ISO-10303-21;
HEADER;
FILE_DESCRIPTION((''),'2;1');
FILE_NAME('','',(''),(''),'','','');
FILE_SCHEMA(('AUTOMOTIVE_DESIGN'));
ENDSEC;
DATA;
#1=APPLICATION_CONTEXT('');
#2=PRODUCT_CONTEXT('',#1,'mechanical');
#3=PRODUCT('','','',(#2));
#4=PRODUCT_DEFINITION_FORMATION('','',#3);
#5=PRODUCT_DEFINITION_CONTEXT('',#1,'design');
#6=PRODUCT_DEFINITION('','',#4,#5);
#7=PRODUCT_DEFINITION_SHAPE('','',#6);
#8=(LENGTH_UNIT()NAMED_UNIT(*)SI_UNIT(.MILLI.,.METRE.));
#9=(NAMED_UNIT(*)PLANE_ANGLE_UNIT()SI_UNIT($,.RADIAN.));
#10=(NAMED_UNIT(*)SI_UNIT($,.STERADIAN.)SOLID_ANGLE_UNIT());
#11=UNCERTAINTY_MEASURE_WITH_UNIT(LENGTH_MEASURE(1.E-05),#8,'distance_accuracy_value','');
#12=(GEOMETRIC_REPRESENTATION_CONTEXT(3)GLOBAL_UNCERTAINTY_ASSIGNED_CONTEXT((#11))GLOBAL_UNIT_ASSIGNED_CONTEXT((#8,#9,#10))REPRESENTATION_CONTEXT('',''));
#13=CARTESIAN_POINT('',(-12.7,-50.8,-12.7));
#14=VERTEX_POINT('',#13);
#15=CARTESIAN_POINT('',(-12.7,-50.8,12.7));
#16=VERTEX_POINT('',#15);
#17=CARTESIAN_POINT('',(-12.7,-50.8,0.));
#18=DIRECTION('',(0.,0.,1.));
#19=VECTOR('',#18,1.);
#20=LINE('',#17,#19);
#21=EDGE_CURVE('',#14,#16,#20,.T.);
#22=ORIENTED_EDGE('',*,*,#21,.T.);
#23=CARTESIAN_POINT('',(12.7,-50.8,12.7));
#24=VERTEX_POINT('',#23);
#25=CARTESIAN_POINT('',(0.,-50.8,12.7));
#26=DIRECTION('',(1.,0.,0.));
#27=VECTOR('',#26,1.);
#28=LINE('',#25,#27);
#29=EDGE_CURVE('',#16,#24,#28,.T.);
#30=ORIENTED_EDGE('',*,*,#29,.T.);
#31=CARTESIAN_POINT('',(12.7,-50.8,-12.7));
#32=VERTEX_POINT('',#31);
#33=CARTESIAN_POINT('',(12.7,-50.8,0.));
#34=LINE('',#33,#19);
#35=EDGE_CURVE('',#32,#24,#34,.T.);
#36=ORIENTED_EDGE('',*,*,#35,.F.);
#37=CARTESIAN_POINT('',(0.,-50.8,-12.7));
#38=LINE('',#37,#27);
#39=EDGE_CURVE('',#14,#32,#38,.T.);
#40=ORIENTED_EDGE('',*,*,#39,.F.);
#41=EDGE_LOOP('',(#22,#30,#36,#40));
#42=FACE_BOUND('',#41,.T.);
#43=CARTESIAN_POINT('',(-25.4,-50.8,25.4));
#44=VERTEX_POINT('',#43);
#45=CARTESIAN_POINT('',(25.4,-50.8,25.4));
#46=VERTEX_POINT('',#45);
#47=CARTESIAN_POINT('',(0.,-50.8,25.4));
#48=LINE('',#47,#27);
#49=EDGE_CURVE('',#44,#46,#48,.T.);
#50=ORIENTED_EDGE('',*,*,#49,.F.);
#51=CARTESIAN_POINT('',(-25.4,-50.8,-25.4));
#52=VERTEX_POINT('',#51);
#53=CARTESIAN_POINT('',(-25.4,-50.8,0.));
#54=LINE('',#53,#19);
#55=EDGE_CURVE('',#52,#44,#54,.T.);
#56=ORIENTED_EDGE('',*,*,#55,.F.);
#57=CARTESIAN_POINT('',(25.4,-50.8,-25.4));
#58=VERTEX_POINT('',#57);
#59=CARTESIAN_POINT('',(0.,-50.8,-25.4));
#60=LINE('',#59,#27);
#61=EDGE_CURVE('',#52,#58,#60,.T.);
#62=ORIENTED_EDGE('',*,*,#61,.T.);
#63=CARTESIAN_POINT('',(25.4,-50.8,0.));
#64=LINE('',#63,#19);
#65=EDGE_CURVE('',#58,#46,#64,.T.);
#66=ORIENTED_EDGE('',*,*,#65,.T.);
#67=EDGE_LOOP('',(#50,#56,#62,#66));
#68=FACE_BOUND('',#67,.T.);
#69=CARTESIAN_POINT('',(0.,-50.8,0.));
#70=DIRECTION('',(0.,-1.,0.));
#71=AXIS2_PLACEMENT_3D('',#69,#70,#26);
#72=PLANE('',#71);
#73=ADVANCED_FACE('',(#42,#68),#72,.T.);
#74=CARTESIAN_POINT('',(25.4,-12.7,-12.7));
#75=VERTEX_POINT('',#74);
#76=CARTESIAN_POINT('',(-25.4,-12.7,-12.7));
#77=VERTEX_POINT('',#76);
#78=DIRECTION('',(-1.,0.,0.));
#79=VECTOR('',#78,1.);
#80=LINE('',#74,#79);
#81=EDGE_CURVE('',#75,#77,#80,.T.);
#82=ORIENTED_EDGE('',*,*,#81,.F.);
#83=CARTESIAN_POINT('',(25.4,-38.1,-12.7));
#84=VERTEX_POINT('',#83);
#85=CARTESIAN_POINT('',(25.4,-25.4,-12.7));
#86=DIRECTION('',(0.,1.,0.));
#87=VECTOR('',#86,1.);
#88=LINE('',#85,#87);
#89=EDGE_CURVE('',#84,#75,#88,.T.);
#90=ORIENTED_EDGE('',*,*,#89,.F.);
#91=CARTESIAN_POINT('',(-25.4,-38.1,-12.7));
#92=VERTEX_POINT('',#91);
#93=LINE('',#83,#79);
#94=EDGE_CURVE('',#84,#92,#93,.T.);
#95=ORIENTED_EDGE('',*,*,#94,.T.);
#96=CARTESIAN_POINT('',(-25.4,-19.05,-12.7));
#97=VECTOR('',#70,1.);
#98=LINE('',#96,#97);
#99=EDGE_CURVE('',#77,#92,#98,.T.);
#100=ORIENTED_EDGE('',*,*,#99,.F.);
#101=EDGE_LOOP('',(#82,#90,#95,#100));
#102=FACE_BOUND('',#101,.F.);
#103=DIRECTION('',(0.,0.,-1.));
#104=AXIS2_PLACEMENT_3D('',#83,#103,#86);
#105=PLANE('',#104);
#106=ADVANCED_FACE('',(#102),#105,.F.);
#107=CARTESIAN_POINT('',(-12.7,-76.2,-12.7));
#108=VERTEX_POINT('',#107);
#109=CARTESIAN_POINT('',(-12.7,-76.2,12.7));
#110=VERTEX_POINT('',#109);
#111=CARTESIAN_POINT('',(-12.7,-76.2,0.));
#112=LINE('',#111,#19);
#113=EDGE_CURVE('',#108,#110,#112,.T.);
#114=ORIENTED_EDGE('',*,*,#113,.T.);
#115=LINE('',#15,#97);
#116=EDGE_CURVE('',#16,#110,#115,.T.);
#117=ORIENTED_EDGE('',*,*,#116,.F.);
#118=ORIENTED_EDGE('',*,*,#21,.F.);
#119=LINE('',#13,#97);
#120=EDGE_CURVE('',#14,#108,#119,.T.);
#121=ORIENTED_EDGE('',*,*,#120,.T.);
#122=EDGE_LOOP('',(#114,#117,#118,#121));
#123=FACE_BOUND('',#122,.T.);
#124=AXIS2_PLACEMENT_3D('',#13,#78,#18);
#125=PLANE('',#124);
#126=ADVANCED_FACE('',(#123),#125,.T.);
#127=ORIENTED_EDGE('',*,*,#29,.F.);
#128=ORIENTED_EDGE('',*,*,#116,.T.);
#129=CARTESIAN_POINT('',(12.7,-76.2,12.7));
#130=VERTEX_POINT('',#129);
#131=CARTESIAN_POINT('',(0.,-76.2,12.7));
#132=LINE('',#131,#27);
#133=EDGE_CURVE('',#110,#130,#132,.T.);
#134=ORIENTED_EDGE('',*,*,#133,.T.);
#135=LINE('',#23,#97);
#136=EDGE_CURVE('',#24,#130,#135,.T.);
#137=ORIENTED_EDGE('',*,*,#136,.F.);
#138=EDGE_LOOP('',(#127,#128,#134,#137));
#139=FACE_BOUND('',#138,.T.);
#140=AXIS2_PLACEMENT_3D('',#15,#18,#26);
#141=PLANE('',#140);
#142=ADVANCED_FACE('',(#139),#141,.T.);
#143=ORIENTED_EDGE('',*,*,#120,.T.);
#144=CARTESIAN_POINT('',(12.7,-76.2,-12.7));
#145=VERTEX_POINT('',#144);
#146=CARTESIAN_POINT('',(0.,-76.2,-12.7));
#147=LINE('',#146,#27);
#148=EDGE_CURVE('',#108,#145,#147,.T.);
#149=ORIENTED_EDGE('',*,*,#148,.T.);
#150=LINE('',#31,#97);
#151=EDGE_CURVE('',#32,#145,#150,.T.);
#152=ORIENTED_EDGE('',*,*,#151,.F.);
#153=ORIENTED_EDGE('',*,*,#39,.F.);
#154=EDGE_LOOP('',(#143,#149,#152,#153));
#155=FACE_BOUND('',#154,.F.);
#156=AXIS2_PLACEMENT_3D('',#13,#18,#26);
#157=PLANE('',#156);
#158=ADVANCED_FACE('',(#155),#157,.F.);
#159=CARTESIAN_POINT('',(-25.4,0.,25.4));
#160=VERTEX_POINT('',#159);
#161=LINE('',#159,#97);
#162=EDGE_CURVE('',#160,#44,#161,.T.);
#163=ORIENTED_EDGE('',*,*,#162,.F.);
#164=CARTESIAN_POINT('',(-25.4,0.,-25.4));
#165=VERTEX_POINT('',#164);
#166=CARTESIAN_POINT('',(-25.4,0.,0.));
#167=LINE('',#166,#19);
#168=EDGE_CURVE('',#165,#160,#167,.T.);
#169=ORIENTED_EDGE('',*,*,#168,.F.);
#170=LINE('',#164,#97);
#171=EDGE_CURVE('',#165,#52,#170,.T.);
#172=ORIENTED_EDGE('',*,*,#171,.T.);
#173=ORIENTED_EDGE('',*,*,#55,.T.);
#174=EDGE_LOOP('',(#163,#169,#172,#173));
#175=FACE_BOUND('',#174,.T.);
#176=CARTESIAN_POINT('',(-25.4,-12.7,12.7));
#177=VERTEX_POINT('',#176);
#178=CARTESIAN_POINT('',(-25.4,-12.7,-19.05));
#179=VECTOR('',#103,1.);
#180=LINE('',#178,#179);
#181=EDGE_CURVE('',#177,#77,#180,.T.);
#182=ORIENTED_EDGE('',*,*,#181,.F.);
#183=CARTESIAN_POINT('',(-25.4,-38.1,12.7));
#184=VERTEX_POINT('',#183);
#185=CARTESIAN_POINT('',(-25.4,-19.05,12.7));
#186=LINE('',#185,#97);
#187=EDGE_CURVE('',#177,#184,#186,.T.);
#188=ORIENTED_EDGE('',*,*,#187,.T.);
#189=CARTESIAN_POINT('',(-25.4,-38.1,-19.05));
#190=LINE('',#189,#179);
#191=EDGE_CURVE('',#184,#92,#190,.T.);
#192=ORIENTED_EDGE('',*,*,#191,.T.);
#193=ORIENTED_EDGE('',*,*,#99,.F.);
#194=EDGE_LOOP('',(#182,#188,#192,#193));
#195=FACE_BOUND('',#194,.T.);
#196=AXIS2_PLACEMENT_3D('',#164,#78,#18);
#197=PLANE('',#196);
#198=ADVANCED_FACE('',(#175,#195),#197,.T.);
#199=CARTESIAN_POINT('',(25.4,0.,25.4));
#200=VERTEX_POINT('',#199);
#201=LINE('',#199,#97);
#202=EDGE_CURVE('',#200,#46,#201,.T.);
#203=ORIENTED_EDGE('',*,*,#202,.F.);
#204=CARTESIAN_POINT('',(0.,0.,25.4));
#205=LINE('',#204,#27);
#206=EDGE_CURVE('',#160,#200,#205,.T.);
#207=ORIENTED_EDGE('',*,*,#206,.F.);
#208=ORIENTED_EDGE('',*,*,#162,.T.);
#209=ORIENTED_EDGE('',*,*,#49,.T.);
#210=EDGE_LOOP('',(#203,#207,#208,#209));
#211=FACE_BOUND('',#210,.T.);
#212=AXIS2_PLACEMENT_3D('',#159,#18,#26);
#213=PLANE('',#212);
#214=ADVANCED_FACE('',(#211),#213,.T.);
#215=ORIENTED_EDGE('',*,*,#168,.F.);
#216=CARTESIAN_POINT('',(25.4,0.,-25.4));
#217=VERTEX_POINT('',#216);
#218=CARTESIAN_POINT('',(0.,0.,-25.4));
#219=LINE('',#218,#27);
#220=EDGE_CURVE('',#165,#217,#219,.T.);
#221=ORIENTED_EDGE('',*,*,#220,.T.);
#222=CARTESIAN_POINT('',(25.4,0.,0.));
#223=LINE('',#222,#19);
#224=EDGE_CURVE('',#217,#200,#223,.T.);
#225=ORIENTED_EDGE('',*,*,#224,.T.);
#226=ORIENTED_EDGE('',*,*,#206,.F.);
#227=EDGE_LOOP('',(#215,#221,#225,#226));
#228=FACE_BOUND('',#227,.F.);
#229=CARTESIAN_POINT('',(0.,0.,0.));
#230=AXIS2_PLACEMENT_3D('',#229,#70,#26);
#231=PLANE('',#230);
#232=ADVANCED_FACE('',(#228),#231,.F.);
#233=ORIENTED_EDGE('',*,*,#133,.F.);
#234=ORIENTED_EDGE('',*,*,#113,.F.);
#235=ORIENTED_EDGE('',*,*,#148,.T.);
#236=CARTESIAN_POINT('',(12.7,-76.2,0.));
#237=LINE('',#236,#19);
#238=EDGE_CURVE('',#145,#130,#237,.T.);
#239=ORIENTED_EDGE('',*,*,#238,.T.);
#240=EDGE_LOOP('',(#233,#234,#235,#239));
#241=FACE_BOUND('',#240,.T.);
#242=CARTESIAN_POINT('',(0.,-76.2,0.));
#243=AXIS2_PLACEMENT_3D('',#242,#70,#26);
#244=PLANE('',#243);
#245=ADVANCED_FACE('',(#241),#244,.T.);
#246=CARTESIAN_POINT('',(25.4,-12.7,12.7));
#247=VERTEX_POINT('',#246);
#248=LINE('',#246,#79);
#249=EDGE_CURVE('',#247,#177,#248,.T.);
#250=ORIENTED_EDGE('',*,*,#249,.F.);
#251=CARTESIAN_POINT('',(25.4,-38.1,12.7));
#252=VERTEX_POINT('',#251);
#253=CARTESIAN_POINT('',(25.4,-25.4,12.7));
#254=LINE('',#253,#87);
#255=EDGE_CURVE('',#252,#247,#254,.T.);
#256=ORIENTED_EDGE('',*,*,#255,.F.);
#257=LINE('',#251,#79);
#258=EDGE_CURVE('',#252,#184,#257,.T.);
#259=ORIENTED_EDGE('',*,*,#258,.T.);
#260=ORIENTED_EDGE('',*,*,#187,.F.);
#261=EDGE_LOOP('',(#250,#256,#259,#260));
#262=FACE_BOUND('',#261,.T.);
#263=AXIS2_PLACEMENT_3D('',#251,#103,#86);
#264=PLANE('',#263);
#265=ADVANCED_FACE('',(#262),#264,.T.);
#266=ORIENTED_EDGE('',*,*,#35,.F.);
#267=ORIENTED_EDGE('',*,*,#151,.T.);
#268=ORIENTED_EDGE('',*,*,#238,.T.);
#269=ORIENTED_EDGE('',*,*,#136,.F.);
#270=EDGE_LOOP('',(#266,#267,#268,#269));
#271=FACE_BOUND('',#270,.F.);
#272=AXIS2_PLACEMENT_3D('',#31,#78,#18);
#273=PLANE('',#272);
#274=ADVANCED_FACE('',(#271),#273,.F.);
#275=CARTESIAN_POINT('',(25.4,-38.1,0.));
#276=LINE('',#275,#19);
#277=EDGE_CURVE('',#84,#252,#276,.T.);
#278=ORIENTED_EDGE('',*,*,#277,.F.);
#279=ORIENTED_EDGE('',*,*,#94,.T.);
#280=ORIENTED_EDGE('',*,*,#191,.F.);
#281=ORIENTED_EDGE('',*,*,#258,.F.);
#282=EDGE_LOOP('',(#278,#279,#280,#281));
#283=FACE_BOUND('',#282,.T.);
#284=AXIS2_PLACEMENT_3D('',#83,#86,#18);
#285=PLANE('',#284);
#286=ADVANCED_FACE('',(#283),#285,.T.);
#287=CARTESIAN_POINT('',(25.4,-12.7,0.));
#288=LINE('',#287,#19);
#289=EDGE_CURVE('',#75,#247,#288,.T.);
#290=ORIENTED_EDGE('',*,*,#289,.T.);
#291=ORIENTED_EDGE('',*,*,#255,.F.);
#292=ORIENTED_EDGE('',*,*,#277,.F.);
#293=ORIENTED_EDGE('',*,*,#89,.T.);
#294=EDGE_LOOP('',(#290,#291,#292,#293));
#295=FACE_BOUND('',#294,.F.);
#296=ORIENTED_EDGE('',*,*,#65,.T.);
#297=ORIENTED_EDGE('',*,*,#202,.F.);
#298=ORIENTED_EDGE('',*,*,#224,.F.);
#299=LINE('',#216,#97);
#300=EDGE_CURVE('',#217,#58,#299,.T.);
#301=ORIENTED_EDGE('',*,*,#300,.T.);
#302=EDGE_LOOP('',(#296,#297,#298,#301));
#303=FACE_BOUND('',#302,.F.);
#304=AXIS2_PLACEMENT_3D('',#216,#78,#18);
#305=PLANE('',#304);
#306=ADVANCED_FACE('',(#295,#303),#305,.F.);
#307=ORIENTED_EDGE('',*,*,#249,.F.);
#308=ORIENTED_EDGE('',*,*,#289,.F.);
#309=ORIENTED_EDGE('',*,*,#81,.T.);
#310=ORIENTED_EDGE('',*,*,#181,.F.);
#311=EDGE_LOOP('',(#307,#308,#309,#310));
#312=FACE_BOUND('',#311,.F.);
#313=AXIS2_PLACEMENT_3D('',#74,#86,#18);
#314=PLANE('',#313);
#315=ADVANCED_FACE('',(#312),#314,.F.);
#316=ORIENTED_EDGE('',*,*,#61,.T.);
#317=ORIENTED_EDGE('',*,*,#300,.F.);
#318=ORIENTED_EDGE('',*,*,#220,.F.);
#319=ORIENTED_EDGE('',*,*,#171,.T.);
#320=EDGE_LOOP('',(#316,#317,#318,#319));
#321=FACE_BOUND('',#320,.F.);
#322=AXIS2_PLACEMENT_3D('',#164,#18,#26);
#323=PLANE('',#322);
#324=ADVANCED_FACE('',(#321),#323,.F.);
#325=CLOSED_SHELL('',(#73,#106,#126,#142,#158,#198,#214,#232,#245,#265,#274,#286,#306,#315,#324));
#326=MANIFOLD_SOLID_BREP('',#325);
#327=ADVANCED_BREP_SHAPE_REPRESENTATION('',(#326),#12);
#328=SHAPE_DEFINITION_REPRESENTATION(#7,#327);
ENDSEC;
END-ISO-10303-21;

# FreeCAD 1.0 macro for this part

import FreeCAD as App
import Part
import Sketcher

V = App.Vector
Q = App.Units.Quantity

doc = App.newDocument("Part")
body = doc.addObject("PartDesign::Body", "Body")

# Sketch on XZ plane
sketch1 = body.newObject("Sketcher::SketchObject", "Sketch")
sketch1.AttachmentSupport = (doc.getObject("XZ_Plane"), [""])
sketch1.MapMode = "FlatFace"
sketch1.addGeometry(Part.LineSegment(V(-25, 25, 0), V(-25, -25, 0)), False)
sketch1.addGeometry(Part.LineSegment(V(-25, -25, 0), V(25, -25, 0)), False)
sketch1.addGeometry(Part.LineSegment(V(25, -25, 0), V(25, 25, 0)), False)
sketch1.addGeometry(Part.LineSegment(V(25, 25, 0), V(-25, 25, 0)), False)
sketch1.addConstraint(Sketcher.Constraint("Coincident", 0, 2, 1, 1))
sketch1.addConstraint(Sketcher.Constraint("Coincident", 1, 2, 2, 1))
sketch1.addConstraint(Sketcher.Constraint("Coincident", 2, 2, 3, 1))
sketch1.addConstraint(Sketcher.Constraint("Coincident", 3, 2, 0, 1))
sketch1.addConstraint(Sketcher.Constraint("Vertical", 0))
sketch1.addConstraint(Sketcher.Constraint("Horizontal", 1))
sketch1.addConstraint(Sketcher.Constraint("Vertical", 2))
sketch1.addConstraint(Sketcher.Constraint("Horizontal", 3))
sketch1.addConstraint(Sketcher.Constraint("Symmetric", 0, 2, 2, 2, -1, 1))
sketch1.addConstraint(Sketcher.Constraint("Equal", 3, 0))
sketch1.addConstraint(Sketcher.Constraint("DistanceX", 1, 1, 1, 2, Q("2 in")))
pad1 = body.newObject("PartDesign::Pad", "Pad")
pad1.Profile = sketch1
pad1.Length = Q("2 in")

# Sketch on XZ plane
sketch2 = body.newObject("Sketcher::SketchObject", "Sketch001")
sketch2.AttachmentSupport = (doc.getObject("XZ_Plane"), [""])
sketch2.MapMode = "FlatFace"
sketch2.AttachmentOffset = App.Placement(V(0, 0, 2 * 25.4), App.Rotation())
sketch2.addGeometry(Part.LineSegment(V(-13, 13, 0), V(-13, -13, 0)), False)
sketch2.addGeometry(Part.LineSegment(V(-13, -13, 0), V(13, -13, 0)), False)
sketch2.addGeometry(Part.LineSegment(V(13, -13, 0), V(13, 13, 0)), False)
sketch2.addGeometry(Part.LineSegment(V(13, 13, 0), V(-13, 13, 0)), False)
sketch2.addConstraint(Sketcher.Constraint("Coincident", 0, 2, 1, 1))
sketch2.addConstraint(Sketcher.Constraint("Coincident", 1, 2, 2, 1))
sketch2.addConstraint(Sketcher.Constraint("Coincident", 2, 2, 3, 1))
sketch2.addConstraint(Sketcher.Constraint("Coincident", 3, 2, 0, 1))
sketch2.addConstraint(Sketcher.Constraint("Vertical", 0))
sketch2.addConstraint(Sketcher.Constraint("Horizontal", 1))
sketch2.addConstraint(Sketcher.Constraint("Vertical", 2))
sketch2.addConstraint(Sketcher.Constraint("Horizontal", 3))
sketch2.addConstraint(Sketcher.Constraint("Symmetric", 0, 2, 2, 2, -1, 1))
sketch2.addConstraint(Sketcher.Constraint("Equal", 3, 0))
sketch2.addConstraint(Sketcher.Constraint("DistanceX", 1, 1, 1, 2, Q("1 in")))
pad2 = body.newObject("PartDesign::Pad", "Pad001")
pad2.Profile = sketch2
pad2.Length = Q("1 in")

# Sketch on YZ plane
sketch3 = body.newObject("Sketcher::SketchObject", "Sketch002")
sketch3.AttachmentSupport = (doc.getObject("YZ_Plane"), [""])
sketch3.MapMode = "FlatFace"
sketch3.AttachmentOffset = App.Placement(V(0, 0, 1 * 25.4), App.Rotation())
sketch3.addGeometry(Part.LineSegment(V(-38, 13, 0), V(-38, -13, 0)), False)
sketch3.addGeometry(Part.LineSegment(V(-38, -13, 0), V(-13, -13, 0)), False)
sketch3.addGeometry(Part.LineSegment(V(-13, -13, 0), V(-13, 13, 0)), False)
sketch3.addGeometry(Part.LineSegment(V(-13, 13, 0), V(-38, 13, 0)), False)
sketch3.addConstraint(Sketcher.Constraint("Coincident", 0, 2, 1, 1))
sketch3.addConstraint(Sketcher.Constraint("Coincident", 1, 2, 2, 1))
sketch3.addConstraint(Sketcher.Constraint("Coincident", 2, 2, 3, 1))
sketch3.addConstraint(Sketcher.Constraint("Coincident", 3, 2, 0, 1))
sketch3.addConstraint(Sketcher.Constraint("Vertical", 0))
sketch3.addConstraint(Sketcher.Constraint("Horizontal", 1))
sketch3.addConstraint(Sketcher.Constraint("Vertical", 2))
sketch3.addConstraint(Sketcher.Constraint("Horizontal", 3))
sketch3.addConstraint(Sketcher.Constraint("Equal", 3, 0))
sketch3.addConstraint(Sketcher.Constraint("DistanceX", 1, 1, 1, 2, Q("1 in")))
sketch3.addConstraint(Sketcher.Constraint("DistanceX", 0, 2, -1, 1, Q("1.5 in")))
sketch3.addConstraint(Sketcher.Constraint("DistanceY", 0, 2, -1, 1, Q("0.5 in")))
pocket1 = body.newObject("PartDesign::Pocket", "Pocket")
pocket1.Profile = sketch3
pocket1.Type = "ThroughAll"

doc.recompute()
